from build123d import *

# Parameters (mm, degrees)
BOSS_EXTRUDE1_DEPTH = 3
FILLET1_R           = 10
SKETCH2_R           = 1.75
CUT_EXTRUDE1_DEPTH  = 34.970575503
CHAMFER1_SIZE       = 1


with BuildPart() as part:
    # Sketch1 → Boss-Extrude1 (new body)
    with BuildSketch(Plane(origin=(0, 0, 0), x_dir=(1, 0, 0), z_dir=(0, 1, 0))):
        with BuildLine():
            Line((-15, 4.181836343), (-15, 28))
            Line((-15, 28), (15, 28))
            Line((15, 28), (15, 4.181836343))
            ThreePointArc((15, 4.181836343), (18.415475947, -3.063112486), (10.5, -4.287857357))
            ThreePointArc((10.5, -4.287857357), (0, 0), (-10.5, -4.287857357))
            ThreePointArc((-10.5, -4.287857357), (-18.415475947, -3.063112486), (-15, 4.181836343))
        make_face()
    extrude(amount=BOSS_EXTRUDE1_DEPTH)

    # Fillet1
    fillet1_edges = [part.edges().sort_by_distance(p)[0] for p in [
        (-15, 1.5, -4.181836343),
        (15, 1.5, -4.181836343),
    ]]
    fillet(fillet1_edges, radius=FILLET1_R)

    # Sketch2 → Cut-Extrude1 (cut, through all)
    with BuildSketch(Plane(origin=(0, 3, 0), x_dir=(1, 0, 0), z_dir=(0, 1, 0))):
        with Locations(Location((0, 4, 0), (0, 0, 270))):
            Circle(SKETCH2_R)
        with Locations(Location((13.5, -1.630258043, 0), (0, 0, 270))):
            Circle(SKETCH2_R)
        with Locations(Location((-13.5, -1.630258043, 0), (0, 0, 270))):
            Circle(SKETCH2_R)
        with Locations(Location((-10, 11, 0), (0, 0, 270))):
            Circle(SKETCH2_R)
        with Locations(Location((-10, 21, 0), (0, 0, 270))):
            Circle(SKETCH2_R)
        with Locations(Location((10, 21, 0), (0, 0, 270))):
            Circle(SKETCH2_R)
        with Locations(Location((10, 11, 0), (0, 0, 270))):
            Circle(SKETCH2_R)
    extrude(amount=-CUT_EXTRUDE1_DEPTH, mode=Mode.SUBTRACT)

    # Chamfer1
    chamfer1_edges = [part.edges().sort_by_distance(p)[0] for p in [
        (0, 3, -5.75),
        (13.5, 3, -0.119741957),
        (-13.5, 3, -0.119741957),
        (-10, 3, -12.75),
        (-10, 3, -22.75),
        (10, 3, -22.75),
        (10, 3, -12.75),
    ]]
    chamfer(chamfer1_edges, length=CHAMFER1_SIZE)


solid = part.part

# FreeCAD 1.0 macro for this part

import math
import FreeCAD as App
import Part
import Sketcher

V = App.Vector


def edges_at(feature, points):
    """Names of the edges that pass closest to the given points."""
    edges = feature.Shape.Edges
    near = lambda p: min(range(len(edges)), key=lambda i: edges[i].distToShape(Part.Vertex(*p))[0])
    return sorted({f"Edge{near(p) + 1}" for p in points})

doc = App.newDocument("Part")
body = doc.addObject("PartDesign::Body", "Body")

sketch1 = body.newObject("Sketcher::SketchObject", "Sketch")
sketch1.AttachmentSupport = (doc.getObject("XZ_Plane"), [""])
sketch1.MapMode = "FlatFace"
sketch1.addGeometry([
    Part.LineSegment(V(-15, -28, 0), V(-15, -4, 0)),
    Part.ArcOfCircle(Part.Circle(V(-14, 1, 0), V(0, 0, 1), 5), math.radians(46), math.radians(258)),
    Part.ArcOfCircle(Part.Circle(V(0, 15, 0), V(0, 0, 1), 15), math.radians(-134), math.radians(-46)),
    Part.ArcOfCircle(Part.Circle(V(14, 1, 0), V(0, 0, 1), 5), math.radians(-78), math.radians(134)),
    Part.LineSegment(V(15, -4, 0), V(15, -28, 0)),
    Part.LineSegment(V(15, -28, 0), V(-15, -28, 0)),
], False)
sketch1.addConstraint([
    Sketcher.Constraint("Coincident", 0, 2, 1, 2),
    Sketcher.Constraint("Tangent", 1, 1, 2, 1),
    Sketcher.Constraint("Tangent", 2, 2, 3, 2),
    Sketcher.Constraint("Coincident", 3, 1, 4, 1),
    Sketcher.Constraint("Coincident", 4, 2, 5, 1),
    Sketcher.Constraint("Coincident", 5, 2, 0, 1),
    Sketcher.Constraint("Vertical", 0),
    Sketcher.Constraint("Vertical", 4),
    Sketcher.Constraint("Horizontal", 5),
    Sketcher.Constraint("Equal", 1, 3),
    Sketcher.Constraint("Symmetric", 1, 3, 3, 3, -2),
    Sketcher.Constraint("Horizontal", 0, 2, 3, 1),
    Sketcher.Constraint("Radius", 1, 5.0),
    Sketcher.Constraint("Radius", 2, 15.0),
    Sketcher.Constraint("DistanceX", 5, 2, 5, 1, 30.0),
    Sketcher.Constraint("DistanceX", 1, 3, -1, 1, 14.0),
    Sketcher.Constraint("DistanceY", -1, 1, 2, 3, 15.0),
    Sketcher.Constraint("DistanceY", 4, 2, -1, 1, 28.0),
])
pad1 = body.newObject("PartDesign::Pad", "Pad")
pad1.Profile = sketch1
pad1.Length = 3
pad1.Reversed = True
doc.recompute()

fillet = body.newObject("PartDesign::Fillet", "Fillet")
fillet.Base = (pad1, edges_at(pad1, [(-15, 1.5, -4.182), (15, 1.5, -4.182)]))
fillet.Radius = 10

sketch2 = body.newObject("Sketcher::SketchObject", "Sketch001")
sketch2.AttachmentSupport = (doc.getObject("XZ_Plane"), [""])
sketch2.MapMode = "FlatFace"
sketch2.AttachmentOffset = App.Placement(V(0, 0, -3), App.Rotation())
sketch2.addGeometry([
    Part.Circle(V(0, -4, 0), V(0, 0, 1), 1.8),
    Part.Circle(V(13.5, 1.6, 0), V(0, 0, 1), 1.8),
    Part.Circle(V(-13.5, 1.6, 0), V(0, 0, 1), 1.8),
    Part.Circle(V(-10, -11, 0), V(0, 0, 1), 1.8),
    Part.Circle(V(-10, -21, 0), V(0, 0, 1), 1.8),
    Part.Circle(V(10, -21, 0), V(0, 0, 1), 1.8),
    Part.Circle(V(10, -11, 0), V(0, 0, 1), 1.8),
], False)
sketch2.addConstraint([
    Sketcher.Constraint("Equal", 0, 1),
    Sketcher.Constraint("Equal", 1, 2),
    Sketcher.Constraint("Equal", 2, 3),
    Sketcher.Constraint("Equal", 3, 4),
    Sketcher.Constraint("Equal", 4, 5),
    Sketcher.Constraint("Equal", 5, 6),
    Sketcher.Constraint("Symmetric", 1, 3, 2, 3, -2),
    Sketcher.Constraint("Symmetric", 4, 3, 5, 3, -2),
    Sketcher.Constraint("Symmetric", 3, 3, 6, 3, -2),
    Sketcher.Constraint("PointOnObject", 0, 3, -2),
    Sketcher.Constraint("Vertical", 3, 3, 4, 3),
    Sketcher.Constraint("Diameter", 0, 3.5),
    Sketcher.Constraint("DistanceY", 0, 3, -1, 1, 4.0),
    Sketcher.Constraint("DistanceX", 3, 3, -1, 1, 10.0),
    Sketcher.Constraint("DistanceY", 3, 3, -1, 1, 11.0),
    Sketcher.Constraint("DistanceY", 4, 3, -1, 1, 21.0),
    Sketcher.Constraint("DistanceX", 2, 3, 1, 3, 27.0),
    Sketcher.Constraint("DistanceY", -1, 1, 1, 3, 1.630258),
])
pocket1 = body.newObject("PartDesign::Pocket", "Pocket")
pocket1.Profile = sketch2
pocket1.Type = "ThroughAll"
pocket1.Reversed = True
doc.recompute()

chamfer = body.newObject("PartDesign::Chamfer", "Chamfer")
chamfer.Base = (pocket1, edges_at(pocket1, [
    (0, 3, -5.75),
    (13.5, 3, -0.12),
    (-13.5, 3, -0.12),
    (-10, 3, -12.75),
    (-10, 3, -22.75),
    (10, 3, -22.75),
    (10, 3, -12.75),
]))
chamfer.Size = 1

doc.recompute()
